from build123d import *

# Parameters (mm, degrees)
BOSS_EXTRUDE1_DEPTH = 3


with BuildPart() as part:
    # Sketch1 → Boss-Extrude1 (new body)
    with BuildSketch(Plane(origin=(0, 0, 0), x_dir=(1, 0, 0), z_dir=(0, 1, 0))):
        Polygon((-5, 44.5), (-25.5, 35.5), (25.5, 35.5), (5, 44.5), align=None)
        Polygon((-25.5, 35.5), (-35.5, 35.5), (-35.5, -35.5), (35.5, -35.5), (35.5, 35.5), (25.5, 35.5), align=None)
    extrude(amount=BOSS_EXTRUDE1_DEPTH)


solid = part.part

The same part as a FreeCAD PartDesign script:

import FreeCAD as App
import Part
import Sketcher
Q = App.Units.Quantity


def add_polygon(sketch, points):
    """Adds a closed chain of lines whose ends are joined by coincident constraints."""
    first, n = sketch.GeometryCount, len(points)
    for a, b in zip(points, points[1:] + points[:1]):
        sketch.addGeometry(Part.LineSegment(App.Vector(*a, 0), App.Vector(*b, 0)), False)
    for i in range(n):
        sketch.addConstraint(Sketcher.Constraint("Coincident", first + i, 2, first + (i + 1) % n, 1))

doc = App.newDocument("Part")
body = doc.addObject("PartDesign::Body", "Body")

sketch1 = body.newObject("Sketcher::SketchObject", "Sketch")
sketch1.AttachmentSupport = (doc.getObject("XZ_Plane"), [""])
sketch1.MapMode = "FlatFace"
add_polygon(sketch1, [(-5, -44), (-26, -36), (-36, -36), (-36, 36), (36, 36), (36, -36), (26, -36), (5, -44)])
sketch1.addConstraint([
    Sketcher.Constraint("Horizontal", 1),
    Sketcher.Constraint("Vertical", 2),
    Sketcher.Constraint("Horizontal", 3),
    Sketcher.Constraint("Vertical", 4),
    Sketcher.Constraint("Horizontal", 5),
    Sketcher.Constraint("Horizontal", 7),
    Sketcher.Constraint("Symmetric", 1, 2, 3, 2, -1, 1),
    Sketcher.Constraint("Symmetric", 0, 2, 5, 2, -2),
    Sketcher.Constraint("Equal", 5, 7),
    Sketcher.Constraint("Equal", 3, 2),
    Sketcher.Constraint("Equal", 0, 6),
    Sketcher.Constraint("DistanceX", 1, 2, 1, 1, Q("10 mm")),
    Sketcher.Constraint("DistanceX", 3, 1, 3, 2, Q("71 mm")),
    Sketcher.Constraint("DistanceY", 6, 2, 5, 2, Q("9 mm")),
])
pad1 = body.newObject("PartDesign::Pad", "Pad")
pad1.Profile = sketch1
pad1.Length = 3
pad1.Reversed = True

doc.recompute()
